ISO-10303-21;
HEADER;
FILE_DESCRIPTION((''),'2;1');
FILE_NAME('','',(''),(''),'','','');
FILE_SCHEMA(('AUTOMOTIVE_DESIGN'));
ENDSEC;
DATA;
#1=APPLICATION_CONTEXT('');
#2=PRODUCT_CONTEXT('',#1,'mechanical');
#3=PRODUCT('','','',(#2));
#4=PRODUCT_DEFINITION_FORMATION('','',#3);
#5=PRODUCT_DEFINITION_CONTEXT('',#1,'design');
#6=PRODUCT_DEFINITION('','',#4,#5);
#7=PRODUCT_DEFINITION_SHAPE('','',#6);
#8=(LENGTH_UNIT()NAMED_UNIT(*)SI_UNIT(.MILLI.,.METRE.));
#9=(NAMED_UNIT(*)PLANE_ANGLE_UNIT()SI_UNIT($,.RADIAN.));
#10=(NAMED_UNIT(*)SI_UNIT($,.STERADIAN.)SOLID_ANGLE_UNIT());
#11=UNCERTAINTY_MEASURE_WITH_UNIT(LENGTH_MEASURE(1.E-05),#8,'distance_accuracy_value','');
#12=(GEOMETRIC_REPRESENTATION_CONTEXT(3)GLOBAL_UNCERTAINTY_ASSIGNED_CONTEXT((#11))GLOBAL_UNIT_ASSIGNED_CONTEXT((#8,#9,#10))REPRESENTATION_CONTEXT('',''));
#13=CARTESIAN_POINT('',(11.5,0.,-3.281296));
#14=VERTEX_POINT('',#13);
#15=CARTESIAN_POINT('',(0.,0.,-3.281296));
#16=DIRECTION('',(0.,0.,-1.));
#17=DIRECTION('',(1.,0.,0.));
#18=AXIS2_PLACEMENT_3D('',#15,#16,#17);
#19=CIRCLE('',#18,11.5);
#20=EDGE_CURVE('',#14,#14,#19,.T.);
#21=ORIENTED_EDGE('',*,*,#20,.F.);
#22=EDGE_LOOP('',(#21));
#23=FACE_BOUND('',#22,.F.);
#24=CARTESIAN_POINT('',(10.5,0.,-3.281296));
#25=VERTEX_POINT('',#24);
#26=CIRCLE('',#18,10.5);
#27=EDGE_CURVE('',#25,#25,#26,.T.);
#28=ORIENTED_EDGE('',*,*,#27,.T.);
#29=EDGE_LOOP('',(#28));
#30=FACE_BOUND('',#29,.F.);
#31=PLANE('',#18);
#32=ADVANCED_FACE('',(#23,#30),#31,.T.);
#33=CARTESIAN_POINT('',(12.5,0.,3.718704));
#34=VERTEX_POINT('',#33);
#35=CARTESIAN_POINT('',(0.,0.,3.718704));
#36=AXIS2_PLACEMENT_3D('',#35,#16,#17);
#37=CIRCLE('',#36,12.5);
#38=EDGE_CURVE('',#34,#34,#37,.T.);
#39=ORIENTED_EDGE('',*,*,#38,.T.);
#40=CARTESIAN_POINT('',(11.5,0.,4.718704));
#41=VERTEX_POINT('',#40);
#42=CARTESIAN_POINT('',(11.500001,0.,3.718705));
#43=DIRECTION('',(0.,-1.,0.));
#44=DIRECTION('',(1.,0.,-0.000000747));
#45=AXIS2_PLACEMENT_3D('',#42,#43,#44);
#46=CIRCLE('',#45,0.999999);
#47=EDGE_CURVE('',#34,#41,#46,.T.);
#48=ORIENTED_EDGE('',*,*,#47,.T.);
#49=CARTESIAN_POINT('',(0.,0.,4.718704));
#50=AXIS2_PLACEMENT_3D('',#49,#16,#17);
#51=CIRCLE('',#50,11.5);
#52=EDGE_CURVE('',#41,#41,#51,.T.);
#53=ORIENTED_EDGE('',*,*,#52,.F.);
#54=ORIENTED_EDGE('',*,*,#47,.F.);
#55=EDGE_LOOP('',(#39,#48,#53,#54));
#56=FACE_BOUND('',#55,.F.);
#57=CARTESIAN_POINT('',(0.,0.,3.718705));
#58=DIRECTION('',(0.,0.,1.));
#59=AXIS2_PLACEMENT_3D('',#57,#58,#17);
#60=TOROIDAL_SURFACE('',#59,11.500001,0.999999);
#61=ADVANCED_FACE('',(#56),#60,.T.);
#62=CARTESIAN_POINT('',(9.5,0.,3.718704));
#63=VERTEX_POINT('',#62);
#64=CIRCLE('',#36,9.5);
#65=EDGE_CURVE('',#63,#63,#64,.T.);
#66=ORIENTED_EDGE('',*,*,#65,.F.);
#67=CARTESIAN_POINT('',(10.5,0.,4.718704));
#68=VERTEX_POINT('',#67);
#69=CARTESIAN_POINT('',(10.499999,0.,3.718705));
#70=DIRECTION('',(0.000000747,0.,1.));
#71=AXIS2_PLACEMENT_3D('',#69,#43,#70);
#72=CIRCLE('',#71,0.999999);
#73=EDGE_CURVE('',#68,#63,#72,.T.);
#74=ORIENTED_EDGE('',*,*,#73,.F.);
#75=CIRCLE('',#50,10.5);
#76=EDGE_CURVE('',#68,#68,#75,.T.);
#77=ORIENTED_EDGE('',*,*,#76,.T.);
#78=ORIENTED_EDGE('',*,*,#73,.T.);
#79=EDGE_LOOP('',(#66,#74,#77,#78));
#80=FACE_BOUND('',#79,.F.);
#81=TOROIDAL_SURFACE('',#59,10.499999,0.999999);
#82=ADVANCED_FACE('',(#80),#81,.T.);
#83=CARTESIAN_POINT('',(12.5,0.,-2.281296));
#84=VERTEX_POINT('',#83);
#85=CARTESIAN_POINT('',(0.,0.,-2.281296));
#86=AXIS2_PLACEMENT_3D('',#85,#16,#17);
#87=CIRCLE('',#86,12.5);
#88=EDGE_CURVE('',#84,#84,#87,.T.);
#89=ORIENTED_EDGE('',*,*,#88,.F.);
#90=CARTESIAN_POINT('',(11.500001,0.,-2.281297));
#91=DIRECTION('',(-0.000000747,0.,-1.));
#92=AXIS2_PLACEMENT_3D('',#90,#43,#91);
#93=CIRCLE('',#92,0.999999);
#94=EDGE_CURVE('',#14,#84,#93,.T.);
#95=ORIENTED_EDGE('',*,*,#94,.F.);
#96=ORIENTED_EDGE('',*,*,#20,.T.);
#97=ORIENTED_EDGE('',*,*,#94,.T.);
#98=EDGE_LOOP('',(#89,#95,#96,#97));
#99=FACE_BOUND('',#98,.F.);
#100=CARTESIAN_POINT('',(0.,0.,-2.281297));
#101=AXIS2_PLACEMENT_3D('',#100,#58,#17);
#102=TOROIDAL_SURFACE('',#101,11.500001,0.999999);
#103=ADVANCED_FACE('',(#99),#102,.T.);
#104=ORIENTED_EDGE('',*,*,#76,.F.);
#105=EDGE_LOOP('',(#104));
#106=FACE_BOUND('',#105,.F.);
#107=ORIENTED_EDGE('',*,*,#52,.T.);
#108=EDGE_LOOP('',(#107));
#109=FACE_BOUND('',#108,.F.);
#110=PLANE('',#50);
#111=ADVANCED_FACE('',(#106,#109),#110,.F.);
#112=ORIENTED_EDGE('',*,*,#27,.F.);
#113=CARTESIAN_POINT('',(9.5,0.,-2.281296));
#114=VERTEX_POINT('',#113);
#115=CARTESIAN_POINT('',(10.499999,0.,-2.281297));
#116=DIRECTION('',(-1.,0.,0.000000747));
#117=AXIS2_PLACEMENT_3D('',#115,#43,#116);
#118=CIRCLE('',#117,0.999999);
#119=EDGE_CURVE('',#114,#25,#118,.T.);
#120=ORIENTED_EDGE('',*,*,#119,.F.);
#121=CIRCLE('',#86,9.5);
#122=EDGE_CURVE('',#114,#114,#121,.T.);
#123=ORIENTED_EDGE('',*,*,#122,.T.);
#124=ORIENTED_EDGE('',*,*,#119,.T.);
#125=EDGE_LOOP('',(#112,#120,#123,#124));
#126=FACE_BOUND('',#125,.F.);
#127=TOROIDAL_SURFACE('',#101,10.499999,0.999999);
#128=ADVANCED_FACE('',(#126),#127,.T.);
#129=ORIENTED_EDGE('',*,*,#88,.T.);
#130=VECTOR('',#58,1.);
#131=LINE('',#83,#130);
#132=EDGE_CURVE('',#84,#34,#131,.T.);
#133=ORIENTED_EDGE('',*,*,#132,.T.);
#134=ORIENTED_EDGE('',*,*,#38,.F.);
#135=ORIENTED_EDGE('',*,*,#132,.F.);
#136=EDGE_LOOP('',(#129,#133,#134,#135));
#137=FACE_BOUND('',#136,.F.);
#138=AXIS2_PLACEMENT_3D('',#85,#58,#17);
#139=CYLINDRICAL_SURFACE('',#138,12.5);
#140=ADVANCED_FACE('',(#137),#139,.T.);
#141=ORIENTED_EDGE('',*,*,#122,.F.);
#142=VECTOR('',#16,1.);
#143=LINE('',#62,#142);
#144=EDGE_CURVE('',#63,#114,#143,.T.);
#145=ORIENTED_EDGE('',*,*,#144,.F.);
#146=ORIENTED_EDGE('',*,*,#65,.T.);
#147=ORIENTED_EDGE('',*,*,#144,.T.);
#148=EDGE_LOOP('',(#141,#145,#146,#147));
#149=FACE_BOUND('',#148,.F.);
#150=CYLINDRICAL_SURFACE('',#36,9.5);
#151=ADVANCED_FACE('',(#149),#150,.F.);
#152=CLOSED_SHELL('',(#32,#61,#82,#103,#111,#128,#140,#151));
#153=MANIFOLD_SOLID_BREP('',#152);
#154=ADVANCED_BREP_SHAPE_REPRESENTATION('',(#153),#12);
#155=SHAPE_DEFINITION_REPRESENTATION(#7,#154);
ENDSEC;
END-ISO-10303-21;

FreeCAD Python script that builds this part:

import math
import FreeCAD as App
import Part
import Sketcher
Q = App.Units.Quantity

doc = App.newDocument("Part")
body = doc.addObject("PartDesign::Body", "Body")

# Sketch on XZ plane
sketch1 = doc.addObject("Sketcher::SketchObject", "Sketch")
body.addObject(sketch1)
sketch1.AttachmentSupport = (doc.XZ_Plane, [""])
sketch1.MapMode = "FlatFace"
sketch1.addGeometry([
    Part.LineSegment(App.Vector(11.5, 4.7, 0), App.Vector(10.5, 4.7, 0)),  # 0
    Part.ArcOfCircle(Part.Circle(App.Vector(10.5, 3.7, 0), App.Vector(0, 0, 1), 1), math.radians(90), math.radians(180)),  # 1
    Part.LineSegment(App.Vector(9.5, 3.7, 0), App.Vector(9.5, -2.3, 0)),  # 2
    Part.ArcOfCircle(Part.Circle(App.Vector(10.5, -2.3, 0), App.Vector(0, 0, 1), 1), math.radians(180), math.radians(270)),  # 3
    Part.LineSegment(App.Vector(10.5, -3.3, 0), App.Vector(11.5, -3.3, 0)),  # 4
    Part.ArcOfCircle(Part.Circle(App.Vector(11.5, -2.3, 0), App.Vector(0, 0, 1), 1), math.radians(-90), math.radians(0)),  # 5
    Part.LineSegment(App.Vector(12.5, -2.3, 0), App.Vector(12.5, 3.7, 0)),  # 6
    Part.ArcOfCircle(Part.Circle(App.Vector(11.5, 3.7, 0), App.Vector(0, 0, 1), 1), math.radians(0), math.radians(90)),  # 7
], False)
sketch1.addConstraint([
    Sketcher.Constraint("Tangent", 0, 2, 1, 1),
    Sketcher.Constraint("Tangent", 1, 2, 2, 1),
    Sketcher.Constraint("Tangent", 2, 2, 3, 1),
    Sketcher.Constraint("Tangent", 3, 2, 4, 1),
    Sketcher.Constraint("Tangent", 4, 2, 5, 1),
    Sketcher.Constraint("Tangent", 5, 2, 6, 1),
    Sketcher.Constraint("Tangent", 6, 2, 7, 1),
    Sketcher.Constraint("Tangent", 7, 2, 0, 1),
    Sketcher.Constraint("Horizontal", 0),
    Sketcher.Constraint("Vertical", 2),
    Sketcher.Constraint("Horizontal", 4),
    Sketcher.Constraint("Vertical", 6),
    Sketcher.Constraint("Equal", 1, 3),
    Sketcher.Constraint("Equal", 3, 5),
    Sketcher.Constraint("Equal", 5, 7),
    Sketcher.Constraint("Radius", 1, Q("0.999999 mm")),
    Sketcher.Constraint("DistanceX", 0, 2, 0, 1, Q("1 mm")),
    Sketcher.Constraint("DistanceY", 2, 2, 2, 1, Q("6 mm")),
    Sketcher.Constraint("DistanceX", -1, 1, 1, 3, Q("10.499999 mm")),
    Sketcher.Constraint("DistanceY", -1, 1, 1, 3, Q("3.718705 mm")),
])
revolution = doc.addObject("PartDesign::Revolution", "Revolution")
body.addObject(revolution)
revolution.Profile = sketch1
revolution.ReferenceAxis = (sketch1, ["V_Axis"])
revolution.Angle = 360

doc.recompute()
